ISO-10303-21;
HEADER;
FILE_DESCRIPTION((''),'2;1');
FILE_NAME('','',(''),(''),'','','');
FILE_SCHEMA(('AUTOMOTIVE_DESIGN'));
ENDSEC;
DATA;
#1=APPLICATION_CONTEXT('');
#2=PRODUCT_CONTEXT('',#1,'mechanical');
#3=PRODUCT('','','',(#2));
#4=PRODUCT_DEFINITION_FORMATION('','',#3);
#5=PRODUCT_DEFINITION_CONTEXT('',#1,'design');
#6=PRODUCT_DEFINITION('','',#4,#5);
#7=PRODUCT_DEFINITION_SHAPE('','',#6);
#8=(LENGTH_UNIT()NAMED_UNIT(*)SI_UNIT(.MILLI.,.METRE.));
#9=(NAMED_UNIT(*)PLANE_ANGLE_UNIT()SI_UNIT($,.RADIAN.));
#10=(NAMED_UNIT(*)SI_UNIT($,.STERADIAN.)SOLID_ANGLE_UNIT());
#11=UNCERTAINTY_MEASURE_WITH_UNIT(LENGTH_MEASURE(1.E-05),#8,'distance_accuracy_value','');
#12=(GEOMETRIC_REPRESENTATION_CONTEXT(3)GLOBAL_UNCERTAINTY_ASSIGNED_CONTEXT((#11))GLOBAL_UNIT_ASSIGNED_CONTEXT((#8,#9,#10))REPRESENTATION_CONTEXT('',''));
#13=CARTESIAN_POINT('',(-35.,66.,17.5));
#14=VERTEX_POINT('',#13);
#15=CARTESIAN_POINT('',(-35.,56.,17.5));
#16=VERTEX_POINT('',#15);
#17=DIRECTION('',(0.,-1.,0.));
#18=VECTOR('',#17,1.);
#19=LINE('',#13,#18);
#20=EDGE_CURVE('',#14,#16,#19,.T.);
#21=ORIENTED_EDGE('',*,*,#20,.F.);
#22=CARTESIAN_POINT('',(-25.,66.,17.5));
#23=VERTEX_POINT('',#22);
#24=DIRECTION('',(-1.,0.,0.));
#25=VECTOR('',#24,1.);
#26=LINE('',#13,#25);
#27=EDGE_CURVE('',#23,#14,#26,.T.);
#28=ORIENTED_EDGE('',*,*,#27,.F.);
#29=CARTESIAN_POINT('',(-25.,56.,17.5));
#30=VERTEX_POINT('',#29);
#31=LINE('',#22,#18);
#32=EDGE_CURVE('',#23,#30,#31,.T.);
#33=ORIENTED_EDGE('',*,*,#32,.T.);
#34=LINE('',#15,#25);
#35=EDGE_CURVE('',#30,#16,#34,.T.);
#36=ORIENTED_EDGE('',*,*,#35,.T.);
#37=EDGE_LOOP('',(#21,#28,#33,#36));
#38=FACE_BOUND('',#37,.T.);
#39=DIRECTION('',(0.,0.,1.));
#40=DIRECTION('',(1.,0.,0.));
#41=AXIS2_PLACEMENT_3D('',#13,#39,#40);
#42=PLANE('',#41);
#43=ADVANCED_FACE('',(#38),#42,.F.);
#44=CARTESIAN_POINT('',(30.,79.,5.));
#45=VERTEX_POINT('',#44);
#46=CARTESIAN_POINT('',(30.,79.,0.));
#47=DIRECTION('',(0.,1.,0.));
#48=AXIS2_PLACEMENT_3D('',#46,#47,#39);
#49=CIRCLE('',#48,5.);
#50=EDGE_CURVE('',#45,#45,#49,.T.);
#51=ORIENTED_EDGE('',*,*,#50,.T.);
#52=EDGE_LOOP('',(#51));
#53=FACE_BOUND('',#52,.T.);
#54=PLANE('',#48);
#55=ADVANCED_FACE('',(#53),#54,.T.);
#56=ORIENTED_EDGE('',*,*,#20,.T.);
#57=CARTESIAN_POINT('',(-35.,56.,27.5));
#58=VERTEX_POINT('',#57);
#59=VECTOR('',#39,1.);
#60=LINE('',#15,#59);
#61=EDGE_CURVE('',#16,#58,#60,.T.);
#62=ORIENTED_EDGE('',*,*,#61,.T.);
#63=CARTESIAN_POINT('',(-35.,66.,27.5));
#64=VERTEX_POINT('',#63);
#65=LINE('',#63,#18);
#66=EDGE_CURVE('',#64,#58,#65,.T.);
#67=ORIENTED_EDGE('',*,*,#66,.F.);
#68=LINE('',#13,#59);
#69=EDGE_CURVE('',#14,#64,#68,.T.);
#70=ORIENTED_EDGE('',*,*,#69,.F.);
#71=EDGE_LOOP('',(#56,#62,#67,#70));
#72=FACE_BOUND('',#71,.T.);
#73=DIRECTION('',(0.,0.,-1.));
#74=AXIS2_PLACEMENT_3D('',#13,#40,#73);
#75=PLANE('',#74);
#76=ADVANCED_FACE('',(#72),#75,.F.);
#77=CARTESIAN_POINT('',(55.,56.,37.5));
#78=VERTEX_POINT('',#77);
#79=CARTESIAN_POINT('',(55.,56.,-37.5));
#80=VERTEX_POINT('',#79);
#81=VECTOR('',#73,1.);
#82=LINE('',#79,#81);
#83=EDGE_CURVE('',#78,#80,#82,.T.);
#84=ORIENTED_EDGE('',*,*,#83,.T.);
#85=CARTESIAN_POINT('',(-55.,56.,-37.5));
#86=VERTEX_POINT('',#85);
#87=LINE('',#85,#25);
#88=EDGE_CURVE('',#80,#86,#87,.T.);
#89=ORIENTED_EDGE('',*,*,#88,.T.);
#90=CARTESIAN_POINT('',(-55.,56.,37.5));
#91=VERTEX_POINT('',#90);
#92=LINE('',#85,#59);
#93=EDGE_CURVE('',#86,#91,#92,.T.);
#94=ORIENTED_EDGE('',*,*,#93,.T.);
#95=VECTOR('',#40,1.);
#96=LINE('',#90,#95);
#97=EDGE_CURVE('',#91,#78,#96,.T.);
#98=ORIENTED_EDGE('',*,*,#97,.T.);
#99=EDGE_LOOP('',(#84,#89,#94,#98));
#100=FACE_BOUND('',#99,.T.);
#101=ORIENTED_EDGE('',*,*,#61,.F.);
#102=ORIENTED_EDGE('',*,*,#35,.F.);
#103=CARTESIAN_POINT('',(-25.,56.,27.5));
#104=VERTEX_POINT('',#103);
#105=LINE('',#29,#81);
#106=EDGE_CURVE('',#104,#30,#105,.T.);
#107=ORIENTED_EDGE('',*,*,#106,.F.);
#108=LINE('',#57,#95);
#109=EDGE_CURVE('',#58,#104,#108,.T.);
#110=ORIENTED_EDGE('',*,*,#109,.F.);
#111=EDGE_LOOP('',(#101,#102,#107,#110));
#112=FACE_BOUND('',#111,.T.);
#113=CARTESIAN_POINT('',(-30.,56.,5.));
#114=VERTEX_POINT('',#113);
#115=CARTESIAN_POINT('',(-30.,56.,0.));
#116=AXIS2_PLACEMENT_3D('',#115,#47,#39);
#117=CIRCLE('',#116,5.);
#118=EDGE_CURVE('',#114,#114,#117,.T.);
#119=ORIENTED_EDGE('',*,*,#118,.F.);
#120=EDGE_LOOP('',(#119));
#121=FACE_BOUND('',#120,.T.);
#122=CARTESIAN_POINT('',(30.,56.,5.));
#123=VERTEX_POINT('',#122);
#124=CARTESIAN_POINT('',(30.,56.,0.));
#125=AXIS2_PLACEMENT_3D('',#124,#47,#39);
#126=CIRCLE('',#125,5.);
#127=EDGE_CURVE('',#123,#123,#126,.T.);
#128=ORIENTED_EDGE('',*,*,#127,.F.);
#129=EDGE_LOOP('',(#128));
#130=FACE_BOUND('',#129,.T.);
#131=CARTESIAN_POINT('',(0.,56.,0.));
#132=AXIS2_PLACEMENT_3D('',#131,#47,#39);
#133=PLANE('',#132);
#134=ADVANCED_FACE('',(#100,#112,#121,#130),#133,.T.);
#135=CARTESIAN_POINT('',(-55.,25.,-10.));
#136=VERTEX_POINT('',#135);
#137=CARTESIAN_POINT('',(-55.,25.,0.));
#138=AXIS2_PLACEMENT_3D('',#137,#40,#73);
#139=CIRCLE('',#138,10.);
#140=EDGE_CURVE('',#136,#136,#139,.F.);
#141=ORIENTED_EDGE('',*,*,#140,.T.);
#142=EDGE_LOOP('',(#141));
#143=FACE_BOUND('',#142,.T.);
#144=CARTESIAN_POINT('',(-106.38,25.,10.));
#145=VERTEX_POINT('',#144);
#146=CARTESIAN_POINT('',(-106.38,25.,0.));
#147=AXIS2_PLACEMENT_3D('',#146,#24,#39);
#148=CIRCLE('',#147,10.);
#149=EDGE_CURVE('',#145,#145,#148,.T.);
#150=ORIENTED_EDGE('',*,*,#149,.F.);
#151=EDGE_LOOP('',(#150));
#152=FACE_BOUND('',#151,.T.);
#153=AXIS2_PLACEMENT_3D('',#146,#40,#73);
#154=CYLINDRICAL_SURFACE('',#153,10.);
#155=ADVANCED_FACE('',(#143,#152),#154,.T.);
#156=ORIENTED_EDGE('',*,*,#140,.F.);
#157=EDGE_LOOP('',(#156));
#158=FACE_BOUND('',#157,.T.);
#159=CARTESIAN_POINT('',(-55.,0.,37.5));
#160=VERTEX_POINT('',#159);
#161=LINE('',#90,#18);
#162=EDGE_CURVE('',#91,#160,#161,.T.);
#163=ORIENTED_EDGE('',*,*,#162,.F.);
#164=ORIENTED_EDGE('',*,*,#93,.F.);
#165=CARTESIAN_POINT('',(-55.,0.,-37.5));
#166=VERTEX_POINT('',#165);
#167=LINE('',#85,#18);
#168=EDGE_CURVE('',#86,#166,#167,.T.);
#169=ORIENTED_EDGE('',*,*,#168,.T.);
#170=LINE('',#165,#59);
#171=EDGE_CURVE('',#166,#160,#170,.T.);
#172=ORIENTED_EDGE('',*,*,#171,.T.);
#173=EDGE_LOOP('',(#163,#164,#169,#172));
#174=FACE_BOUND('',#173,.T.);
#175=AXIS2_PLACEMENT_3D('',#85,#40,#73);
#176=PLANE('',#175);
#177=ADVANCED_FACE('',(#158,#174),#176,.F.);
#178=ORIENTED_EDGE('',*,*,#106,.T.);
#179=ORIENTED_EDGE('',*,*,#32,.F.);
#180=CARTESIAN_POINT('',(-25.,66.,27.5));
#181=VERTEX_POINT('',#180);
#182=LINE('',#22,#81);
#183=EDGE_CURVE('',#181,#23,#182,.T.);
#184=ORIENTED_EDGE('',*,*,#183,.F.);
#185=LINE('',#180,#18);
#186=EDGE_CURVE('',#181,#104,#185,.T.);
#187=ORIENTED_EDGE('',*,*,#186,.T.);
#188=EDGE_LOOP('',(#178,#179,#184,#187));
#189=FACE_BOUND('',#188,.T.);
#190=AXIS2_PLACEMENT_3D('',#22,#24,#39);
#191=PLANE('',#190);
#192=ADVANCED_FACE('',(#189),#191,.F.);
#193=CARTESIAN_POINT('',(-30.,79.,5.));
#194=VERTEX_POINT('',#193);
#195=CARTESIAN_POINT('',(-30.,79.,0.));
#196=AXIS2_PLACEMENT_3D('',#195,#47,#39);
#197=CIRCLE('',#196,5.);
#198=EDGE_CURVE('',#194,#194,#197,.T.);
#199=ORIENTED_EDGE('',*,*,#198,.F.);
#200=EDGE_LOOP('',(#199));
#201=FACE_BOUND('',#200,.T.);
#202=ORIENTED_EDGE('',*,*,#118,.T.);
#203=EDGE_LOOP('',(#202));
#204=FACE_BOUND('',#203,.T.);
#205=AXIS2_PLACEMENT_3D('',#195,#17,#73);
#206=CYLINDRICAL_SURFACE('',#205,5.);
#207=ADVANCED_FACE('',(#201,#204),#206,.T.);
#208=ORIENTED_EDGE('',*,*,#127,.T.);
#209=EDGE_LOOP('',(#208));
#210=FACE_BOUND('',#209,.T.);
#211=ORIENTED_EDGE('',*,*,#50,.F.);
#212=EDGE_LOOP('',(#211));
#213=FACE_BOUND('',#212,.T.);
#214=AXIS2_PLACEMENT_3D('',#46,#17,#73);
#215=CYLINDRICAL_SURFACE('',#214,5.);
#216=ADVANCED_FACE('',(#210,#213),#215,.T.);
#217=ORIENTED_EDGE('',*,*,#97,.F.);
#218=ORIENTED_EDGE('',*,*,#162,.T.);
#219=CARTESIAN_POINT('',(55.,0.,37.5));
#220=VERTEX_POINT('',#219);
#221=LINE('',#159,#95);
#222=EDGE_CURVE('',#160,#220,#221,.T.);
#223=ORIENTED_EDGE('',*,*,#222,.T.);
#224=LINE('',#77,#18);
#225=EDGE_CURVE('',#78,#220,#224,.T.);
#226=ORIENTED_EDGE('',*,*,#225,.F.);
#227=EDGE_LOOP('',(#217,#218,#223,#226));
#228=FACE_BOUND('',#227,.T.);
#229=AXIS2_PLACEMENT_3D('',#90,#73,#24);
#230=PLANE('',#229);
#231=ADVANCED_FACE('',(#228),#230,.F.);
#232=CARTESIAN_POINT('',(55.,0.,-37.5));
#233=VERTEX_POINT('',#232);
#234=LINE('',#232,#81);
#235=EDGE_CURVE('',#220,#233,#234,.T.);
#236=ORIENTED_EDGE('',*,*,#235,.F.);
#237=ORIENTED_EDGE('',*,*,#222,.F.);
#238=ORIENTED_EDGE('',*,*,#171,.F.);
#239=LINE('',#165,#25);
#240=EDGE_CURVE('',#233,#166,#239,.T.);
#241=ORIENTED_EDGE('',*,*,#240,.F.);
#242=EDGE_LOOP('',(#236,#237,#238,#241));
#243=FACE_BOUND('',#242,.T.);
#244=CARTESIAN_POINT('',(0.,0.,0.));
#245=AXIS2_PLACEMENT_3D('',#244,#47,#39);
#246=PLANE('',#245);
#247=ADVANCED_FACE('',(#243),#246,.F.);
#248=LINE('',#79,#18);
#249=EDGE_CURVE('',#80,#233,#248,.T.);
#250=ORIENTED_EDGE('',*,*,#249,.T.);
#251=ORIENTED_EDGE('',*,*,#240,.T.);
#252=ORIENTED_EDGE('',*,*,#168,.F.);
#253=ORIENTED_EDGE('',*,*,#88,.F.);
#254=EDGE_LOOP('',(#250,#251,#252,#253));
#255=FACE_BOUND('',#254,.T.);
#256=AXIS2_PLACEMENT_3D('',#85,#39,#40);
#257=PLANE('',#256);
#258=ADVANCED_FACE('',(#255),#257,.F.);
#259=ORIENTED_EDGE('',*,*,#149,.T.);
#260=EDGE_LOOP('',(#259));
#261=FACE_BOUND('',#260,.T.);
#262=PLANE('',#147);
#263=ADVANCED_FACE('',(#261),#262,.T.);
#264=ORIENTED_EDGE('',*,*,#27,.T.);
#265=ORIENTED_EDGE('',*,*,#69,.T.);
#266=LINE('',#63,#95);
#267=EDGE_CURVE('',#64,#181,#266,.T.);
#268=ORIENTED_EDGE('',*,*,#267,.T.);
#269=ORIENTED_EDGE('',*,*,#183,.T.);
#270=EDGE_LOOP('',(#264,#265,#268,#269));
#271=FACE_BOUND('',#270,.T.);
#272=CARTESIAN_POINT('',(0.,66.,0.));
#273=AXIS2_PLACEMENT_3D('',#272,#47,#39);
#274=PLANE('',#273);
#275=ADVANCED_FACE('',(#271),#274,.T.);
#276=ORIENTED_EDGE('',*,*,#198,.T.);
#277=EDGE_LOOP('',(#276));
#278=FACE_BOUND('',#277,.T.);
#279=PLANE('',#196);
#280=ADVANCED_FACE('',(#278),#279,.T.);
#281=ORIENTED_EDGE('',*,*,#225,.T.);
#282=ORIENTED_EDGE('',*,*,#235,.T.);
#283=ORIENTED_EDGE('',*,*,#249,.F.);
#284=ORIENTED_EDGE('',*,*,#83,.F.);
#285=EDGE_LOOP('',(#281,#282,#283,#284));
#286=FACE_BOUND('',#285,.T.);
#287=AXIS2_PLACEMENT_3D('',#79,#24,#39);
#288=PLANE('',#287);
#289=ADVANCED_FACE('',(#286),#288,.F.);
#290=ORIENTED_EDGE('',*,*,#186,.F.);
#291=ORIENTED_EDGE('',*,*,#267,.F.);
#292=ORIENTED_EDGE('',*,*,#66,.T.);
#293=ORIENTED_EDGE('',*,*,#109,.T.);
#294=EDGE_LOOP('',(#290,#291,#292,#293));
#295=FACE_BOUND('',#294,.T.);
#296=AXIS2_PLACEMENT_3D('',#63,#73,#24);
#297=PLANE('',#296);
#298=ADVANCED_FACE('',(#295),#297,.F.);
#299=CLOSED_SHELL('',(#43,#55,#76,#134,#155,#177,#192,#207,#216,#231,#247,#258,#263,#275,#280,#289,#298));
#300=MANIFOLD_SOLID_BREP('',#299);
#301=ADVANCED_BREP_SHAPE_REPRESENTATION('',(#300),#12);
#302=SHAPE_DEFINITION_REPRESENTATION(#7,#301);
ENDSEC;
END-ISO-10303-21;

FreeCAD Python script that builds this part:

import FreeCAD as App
import Part
import Sketcher

doc = App.newDocument("Part")
body = doc.addObject("PartDesign::Body", "Body")

# Sketch on XZ plane
sketch1 = body.newObject("Sketcher::SketchObject", "Sketch")
sketch1.AttachmentSupport = (doc.getObject("XZ_Plane"), [""])
sketch1.MapMode = "FlatFace"
sketch1.addGeometry([
    Part.LineSegment(App.Vector(-55, -38, 0), App.Vector(-55, 38, 0)),
    Part.LineSegment(App.Vector(-55, 38, 0), App.Vector(55, 38, 0)),
    Part.LineSegment(App.Vector(55, 38, 0), App.Vector(55, -38, 0)),
    Part.LineSegment(App.Vector(55, -38, 0), App.Vector(-55, -38, 0)),
], False)
sketch1.addConstraint([
    Sketcher.Constraint("Coincident", 0, 2, 1, 1),
    Sketcher.Constraint("Coincident", 1, 2, 2, 1),
    Sketcher.Constraint("Coincident", 2, 2, 3, 1),
    Sketcher.Constraint("Coincident", 3, 2, 0, 1),
    Sketcher.Constraint("Vertical", 0),
    Sketcher.Constraint("Horizontal", 1),
    Sketcher.Constraint("Vertical", 2),
    Sketcher.Constraint("Horizontal", 3),
    Sketcher.Constraint("Symmetric", 0, 2, 2, 2, -1, 1),
    Sketcher.Constraint("DistanceX", 1, 1, 1, 2, 110.0),
    Sketcher.Constraint("DistanceY", 0, 1, 0, 2, 75.0),
])
pad1 = body.newObject("PartDesign::Pad", "Pad")
pad1.Profile = sketch1
pad1.Length = 56
pad1.Reversed = True

# Sketch on XZ plane
sketch2 = body.newObject("Sketcher::SketchObject", "Sketch001")
sketch2.AttachmentSupport = (doc.getObject("XZ_Plane"), [""])
sketch2.MapMode = "FlatFace"
sketch2.AttachmentOffset = App.Placement(App.Vector(0, 0, -56), App.Rotation())
sketch2.addGeometry([
    Part.Circle(App.Vector(30, 0, 0), App.Vector(0, 0, 1), 5),
    Part.Circle(App.Vector(-30, 0, 0), App.Vector(0, 0, 1), 5),
], False)
sketch2.addConstraint([
    Sketcher.Constraint("Equal", 0, 1),
    Sketcher.Constraint("Symmetric", 0, 3, 1, 3, -1, 1),
    Sketcher.Constraint("PointOnObject", 0, 3, -1),
    Sketcher.Constraint("Diameter", 0, 10.0),
    Sketcher.Constraint("DistanceX", -1, 1, 0, 3, 30.0),
])
pad2 = body.newObject("PartDesign::Pad", "Pad001")
pad2.Profile = sketch2
pad2.Length = 23
pad2.Reversed = True

# Sketch on YZ plane
sketch3 = body.newObject("Sketcher::SketchObject", "Sketch002")
sketch3.AttachmentSupport = (doc.getObject("YZ_Plane"), [""])
sketch3.MapMode = "FlatFace"
sketch3.AttachmentOffset = App.Placement(App.Vector(0, 0, -55), App.Rotation())
sketch3.addGeometry(Part.Circle(App.Vector(25, 0, 0), App.Vector(0, 0, 1), 10), False)
sketch3.addConstraint([
    Sketcher.Constraint("PointOnObject", 0, 3, -1),
    Sketcher.Constraint("Diameter", 0, 20.0),
    Sketcher.Constraint("DistanceX", -1, 1, 0, 3, 25.0),
])
pad3 = body.newObject("PartDesign::Pad", "Pad002")
pad3.Profile = sketch3
pad3.Length = 51.38
pad3.Reversed = True

# Sketch on XZ plane
sketch4 = body.newObject("Sketcher::SketchObject", "Sketch003")
sketch4.AttachmentSupport = (doc.getObject("XZ_Plane"), [""])
sketch4.MapMode = "FlatFace"
sketch4.AttachmentOffset = App.Placement(App.Vector(0, 0, -56), App.Rotation())
sketch4.addGeometry([
    Part.LineSegment(App.Vector(-35, 18, 0), App.Vector(-35, 28, 0)),
    Part.LineSegment(App.Vector(-35, 28, 0), App.Vector(-25, 28, 0)),
    Part.LineSegment(App.Vector(-25, 28, 0), App.Vector(-25, 18, 0)),
    Part.LineSegment(App.Vector(-25, 18, 0), App.Vector(-35, 18, 0)),
], False)
sketch4.addConstraint([
    Sketcher.Constraint("Coincident", 0, 2, 1, 1),
    Sketcher.Constraint("Coincident", 1, 2, 2, 1),
    Sketcher.Constraint("Coincident", 2, 2, 3, 1),
    Sketcher.Constraint("Coincident", 3, 2, 0, 1),
    Sketcher.Constraint("Vertical", 0),
    Sketcher.Constraint("Horizontal", 1),
    Sketcher.Constraint("Vertical", 2),
    Sketcher.Constraint("Horizontal", 3),
    Sketcher.Constraint("Equal", 3, 0),
    Sketcher.Constraint("DistanceX", 1, 1, 1, 2, 10.0),
    Sketcher.Constraint("DistanceX", 0, 2, -1, 1, 35.0),
    Sketcher.Constraint("DistanceY", -1, 1, 0, 2, 27.5),
])
pad4 = body.newObject("PartDesign::Pad", "Pad003")
pad4.Profile = sketch4
pad4.Length = 10
pad4.Reversed = True

doc.recompute()
